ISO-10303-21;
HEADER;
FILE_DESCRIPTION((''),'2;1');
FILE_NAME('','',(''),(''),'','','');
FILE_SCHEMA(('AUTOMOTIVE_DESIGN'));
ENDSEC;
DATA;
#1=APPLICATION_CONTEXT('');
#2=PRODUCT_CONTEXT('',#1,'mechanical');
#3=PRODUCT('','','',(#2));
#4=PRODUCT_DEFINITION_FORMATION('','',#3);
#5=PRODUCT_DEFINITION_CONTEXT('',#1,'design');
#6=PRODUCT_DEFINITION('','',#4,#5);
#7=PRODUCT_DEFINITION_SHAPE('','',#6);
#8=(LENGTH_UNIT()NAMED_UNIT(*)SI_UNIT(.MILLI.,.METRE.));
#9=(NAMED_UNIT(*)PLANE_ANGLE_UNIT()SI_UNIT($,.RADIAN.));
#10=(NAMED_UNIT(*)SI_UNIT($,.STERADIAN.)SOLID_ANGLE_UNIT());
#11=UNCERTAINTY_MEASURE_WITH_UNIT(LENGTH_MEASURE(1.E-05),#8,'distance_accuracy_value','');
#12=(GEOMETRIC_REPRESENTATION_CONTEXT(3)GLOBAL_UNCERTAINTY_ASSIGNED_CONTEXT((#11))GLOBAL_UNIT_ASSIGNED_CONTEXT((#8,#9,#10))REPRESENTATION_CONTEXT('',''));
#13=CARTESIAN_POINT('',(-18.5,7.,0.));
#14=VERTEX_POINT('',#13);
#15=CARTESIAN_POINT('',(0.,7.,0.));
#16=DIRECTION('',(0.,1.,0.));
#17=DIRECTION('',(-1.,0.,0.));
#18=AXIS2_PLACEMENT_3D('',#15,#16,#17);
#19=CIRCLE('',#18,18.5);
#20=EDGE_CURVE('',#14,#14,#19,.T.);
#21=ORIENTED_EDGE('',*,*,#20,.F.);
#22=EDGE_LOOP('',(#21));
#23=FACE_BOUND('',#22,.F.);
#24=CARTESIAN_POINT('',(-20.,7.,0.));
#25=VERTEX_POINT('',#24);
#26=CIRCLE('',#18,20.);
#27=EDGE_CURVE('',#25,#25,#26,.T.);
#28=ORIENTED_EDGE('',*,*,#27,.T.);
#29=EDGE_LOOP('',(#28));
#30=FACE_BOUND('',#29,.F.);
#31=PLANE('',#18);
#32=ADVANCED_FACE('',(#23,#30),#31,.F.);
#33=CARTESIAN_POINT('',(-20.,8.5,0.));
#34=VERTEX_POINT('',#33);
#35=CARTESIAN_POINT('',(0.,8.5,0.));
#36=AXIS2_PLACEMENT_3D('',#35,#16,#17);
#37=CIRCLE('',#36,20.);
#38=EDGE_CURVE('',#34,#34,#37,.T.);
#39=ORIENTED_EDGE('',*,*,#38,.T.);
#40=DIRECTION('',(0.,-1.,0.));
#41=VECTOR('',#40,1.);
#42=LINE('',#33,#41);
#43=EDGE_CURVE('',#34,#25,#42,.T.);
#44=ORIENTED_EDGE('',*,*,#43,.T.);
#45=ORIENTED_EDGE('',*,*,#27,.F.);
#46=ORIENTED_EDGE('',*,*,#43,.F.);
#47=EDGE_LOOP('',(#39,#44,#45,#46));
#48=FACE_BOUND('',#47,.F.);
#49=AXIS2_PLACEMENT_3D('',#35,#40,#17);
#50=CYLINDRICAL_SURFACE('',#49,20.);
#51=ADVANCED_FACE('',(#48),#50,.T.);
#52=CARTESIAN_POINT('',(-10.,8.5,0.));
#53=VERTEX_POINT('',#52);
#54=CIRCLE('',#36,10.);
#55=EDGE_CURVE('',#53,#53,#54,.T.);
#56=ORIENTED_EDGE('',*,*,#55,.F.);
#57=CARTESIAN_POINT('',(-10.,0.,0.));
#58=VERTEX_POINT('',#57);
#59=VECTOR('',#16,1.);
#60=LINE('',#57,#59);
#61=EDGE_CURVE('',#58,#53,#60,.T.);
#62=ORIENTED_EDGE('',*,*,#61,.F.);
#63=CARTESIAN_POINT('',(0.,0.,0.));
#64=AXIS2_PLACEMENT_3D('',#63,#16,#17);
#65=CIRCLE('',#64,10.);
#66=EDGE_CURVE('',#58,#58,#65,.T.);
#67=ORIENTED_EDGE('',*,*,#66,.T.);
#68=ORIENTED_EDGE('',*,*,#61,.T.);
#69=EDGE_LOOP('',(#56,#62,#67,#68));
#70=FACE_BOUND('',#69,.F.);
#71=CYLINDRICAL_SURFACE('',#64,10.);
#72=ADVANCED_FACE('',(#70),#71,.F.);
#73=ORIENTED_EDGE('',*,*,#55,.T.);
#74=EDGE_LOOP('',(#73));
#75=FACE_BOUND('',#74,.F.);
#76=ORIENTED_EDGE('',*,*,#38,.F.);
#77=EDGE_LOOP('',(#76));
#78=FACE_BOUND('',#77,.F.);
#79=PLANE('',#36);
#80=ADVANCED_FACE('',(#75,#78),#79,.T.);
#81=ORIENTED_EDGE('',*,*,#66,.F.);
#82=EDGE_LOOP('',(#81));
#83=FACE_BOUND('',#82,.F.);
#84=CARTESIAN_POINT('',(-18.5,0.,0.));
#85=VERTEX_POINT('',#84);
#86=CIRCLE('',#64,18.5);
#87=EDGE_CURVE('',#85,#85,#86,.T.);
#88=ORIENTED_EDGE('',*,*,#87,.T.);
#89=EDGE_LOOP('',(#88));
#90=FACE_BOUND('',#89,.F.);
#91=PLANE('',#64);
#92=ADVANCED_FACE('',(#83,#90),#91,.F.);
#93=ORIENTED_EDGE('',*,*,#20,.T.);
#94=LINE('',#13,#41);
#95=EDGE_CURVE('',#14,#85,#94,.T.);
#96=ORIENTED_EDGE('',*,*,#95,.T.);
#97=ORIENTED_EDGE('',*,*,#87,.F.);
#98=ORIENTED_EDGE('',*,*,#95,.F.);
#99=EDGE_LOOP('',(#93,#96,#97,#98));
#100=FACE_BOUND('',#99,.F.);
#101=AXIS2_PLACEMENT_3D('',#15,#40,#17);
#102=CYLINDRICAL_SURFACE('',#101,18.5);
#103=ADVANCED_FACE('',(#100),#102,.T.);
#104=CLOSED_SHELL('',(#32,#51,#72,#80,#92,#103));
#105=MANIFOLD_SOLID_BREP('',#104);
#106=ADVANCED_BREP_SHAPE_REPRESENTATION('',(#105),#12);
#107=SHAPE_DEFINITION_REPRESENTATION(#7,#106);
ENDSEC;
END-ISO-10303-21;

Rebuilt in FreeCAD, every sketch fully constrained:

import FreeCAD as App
import Part
import Sketcher
from FreeCAD import Vector


def add_polygon(sketch, points):
    """Adds a closed chain of lines whose ends are joined by coincident constraints."""
    first, n = sketch.GeometryCount, len(points)
    for a, b in zip(points, points[1:] + points[:1]):
        sketch.addGeometry(Part.LineSegment(App.Vector(*a, 0), App.Vector(*b, 0)), False)
    for i in range(n):
        sketch.addConstraint(Sketcher.Constraint("Coincident", first + i, 2, first + (i + 1) % n, 1))

doc = App.newDocument("Part")
params = doc.addObject("Spreadsheet::Sheet", "Params")
for row, (alias, value) in enumerate([
    ("sketch1_width", "10 mm"),
    ("sketch1_width2", "1.5 mm"),
    ("revolution_angle", "360 deg"),
], start=1):
    params.set(f"A{row}", alias)
    params.set(f"B{row}", "=" + value)
    params.setAlias(f"B{row}", alias)

body = doc.addObject("PartDesign::Body", "Body")

sketch1 = doc.addObject("Sketcher::SketchObject", "Sketch")
body.addObject(sketch1)
sketch1.AttachmentSupport = (doc.XY_Plane, [""])
sketch1.MapMode = "FlatFace"
add_polygon(sketch1, [(-10, 8.5), (-20, 8.5), (-20, 7), (-18.5, 7), (-18.5, 0), (-10, 0)])
sketch1.addConstraint(Sketcher.Constraint("Horizontal", 0))
sketch1.addConstraint(Sketcher.Constraint("Vertical", 1))
sketch1.addConstraint(Sketcher.Constraint("Horizontal", 2))
sketch1.addConstraint(Sketcher.Constraint("Vertical", 3))
sketch1.addConstraint(Sketcher.Constraint("Horizontal", 4))
sketch1.addConstraint(Sketcher.Constraint("Vertical", 5))
sketch1.addConstraint(Sketcher.Constraint("PointOnObject", 3, 2, -1))
sketch1.addConstraint(Sketcher.Constraint("Equal", 2, 1))
sketch1.addConstraint(Sketcher.Constraint("Equal", 4, 5))
sketch1.addConstraint(Sketcher.Constraint("DistanceX", 0, 2, 0, 1, 10.0))
sketch1.addConstraint(Sketcher.Constraint("DistanceX", 2, 1, 2, 2, 1.5))
sketch1.addConstraint(Sketcher.Constraint("DistanceX", 0, 2, -1, 1, 20.0))
sketch1.setExpression("Constraints[15]", "Params.sketch1_width")
sketch1.setExpression("Constraints[16]", "Params.sketch1_width2")
revolution = doc.addObject("PartDesign::Revolution", "Revolution")
body.addObject(revolution)
revolution.Profile = sketch1
revolution.ReferenceAxis = (sketch1, ["V_Axis"])
revolution.setExpression("Angle", "Params.revolution_angle")

doc.recompute()
